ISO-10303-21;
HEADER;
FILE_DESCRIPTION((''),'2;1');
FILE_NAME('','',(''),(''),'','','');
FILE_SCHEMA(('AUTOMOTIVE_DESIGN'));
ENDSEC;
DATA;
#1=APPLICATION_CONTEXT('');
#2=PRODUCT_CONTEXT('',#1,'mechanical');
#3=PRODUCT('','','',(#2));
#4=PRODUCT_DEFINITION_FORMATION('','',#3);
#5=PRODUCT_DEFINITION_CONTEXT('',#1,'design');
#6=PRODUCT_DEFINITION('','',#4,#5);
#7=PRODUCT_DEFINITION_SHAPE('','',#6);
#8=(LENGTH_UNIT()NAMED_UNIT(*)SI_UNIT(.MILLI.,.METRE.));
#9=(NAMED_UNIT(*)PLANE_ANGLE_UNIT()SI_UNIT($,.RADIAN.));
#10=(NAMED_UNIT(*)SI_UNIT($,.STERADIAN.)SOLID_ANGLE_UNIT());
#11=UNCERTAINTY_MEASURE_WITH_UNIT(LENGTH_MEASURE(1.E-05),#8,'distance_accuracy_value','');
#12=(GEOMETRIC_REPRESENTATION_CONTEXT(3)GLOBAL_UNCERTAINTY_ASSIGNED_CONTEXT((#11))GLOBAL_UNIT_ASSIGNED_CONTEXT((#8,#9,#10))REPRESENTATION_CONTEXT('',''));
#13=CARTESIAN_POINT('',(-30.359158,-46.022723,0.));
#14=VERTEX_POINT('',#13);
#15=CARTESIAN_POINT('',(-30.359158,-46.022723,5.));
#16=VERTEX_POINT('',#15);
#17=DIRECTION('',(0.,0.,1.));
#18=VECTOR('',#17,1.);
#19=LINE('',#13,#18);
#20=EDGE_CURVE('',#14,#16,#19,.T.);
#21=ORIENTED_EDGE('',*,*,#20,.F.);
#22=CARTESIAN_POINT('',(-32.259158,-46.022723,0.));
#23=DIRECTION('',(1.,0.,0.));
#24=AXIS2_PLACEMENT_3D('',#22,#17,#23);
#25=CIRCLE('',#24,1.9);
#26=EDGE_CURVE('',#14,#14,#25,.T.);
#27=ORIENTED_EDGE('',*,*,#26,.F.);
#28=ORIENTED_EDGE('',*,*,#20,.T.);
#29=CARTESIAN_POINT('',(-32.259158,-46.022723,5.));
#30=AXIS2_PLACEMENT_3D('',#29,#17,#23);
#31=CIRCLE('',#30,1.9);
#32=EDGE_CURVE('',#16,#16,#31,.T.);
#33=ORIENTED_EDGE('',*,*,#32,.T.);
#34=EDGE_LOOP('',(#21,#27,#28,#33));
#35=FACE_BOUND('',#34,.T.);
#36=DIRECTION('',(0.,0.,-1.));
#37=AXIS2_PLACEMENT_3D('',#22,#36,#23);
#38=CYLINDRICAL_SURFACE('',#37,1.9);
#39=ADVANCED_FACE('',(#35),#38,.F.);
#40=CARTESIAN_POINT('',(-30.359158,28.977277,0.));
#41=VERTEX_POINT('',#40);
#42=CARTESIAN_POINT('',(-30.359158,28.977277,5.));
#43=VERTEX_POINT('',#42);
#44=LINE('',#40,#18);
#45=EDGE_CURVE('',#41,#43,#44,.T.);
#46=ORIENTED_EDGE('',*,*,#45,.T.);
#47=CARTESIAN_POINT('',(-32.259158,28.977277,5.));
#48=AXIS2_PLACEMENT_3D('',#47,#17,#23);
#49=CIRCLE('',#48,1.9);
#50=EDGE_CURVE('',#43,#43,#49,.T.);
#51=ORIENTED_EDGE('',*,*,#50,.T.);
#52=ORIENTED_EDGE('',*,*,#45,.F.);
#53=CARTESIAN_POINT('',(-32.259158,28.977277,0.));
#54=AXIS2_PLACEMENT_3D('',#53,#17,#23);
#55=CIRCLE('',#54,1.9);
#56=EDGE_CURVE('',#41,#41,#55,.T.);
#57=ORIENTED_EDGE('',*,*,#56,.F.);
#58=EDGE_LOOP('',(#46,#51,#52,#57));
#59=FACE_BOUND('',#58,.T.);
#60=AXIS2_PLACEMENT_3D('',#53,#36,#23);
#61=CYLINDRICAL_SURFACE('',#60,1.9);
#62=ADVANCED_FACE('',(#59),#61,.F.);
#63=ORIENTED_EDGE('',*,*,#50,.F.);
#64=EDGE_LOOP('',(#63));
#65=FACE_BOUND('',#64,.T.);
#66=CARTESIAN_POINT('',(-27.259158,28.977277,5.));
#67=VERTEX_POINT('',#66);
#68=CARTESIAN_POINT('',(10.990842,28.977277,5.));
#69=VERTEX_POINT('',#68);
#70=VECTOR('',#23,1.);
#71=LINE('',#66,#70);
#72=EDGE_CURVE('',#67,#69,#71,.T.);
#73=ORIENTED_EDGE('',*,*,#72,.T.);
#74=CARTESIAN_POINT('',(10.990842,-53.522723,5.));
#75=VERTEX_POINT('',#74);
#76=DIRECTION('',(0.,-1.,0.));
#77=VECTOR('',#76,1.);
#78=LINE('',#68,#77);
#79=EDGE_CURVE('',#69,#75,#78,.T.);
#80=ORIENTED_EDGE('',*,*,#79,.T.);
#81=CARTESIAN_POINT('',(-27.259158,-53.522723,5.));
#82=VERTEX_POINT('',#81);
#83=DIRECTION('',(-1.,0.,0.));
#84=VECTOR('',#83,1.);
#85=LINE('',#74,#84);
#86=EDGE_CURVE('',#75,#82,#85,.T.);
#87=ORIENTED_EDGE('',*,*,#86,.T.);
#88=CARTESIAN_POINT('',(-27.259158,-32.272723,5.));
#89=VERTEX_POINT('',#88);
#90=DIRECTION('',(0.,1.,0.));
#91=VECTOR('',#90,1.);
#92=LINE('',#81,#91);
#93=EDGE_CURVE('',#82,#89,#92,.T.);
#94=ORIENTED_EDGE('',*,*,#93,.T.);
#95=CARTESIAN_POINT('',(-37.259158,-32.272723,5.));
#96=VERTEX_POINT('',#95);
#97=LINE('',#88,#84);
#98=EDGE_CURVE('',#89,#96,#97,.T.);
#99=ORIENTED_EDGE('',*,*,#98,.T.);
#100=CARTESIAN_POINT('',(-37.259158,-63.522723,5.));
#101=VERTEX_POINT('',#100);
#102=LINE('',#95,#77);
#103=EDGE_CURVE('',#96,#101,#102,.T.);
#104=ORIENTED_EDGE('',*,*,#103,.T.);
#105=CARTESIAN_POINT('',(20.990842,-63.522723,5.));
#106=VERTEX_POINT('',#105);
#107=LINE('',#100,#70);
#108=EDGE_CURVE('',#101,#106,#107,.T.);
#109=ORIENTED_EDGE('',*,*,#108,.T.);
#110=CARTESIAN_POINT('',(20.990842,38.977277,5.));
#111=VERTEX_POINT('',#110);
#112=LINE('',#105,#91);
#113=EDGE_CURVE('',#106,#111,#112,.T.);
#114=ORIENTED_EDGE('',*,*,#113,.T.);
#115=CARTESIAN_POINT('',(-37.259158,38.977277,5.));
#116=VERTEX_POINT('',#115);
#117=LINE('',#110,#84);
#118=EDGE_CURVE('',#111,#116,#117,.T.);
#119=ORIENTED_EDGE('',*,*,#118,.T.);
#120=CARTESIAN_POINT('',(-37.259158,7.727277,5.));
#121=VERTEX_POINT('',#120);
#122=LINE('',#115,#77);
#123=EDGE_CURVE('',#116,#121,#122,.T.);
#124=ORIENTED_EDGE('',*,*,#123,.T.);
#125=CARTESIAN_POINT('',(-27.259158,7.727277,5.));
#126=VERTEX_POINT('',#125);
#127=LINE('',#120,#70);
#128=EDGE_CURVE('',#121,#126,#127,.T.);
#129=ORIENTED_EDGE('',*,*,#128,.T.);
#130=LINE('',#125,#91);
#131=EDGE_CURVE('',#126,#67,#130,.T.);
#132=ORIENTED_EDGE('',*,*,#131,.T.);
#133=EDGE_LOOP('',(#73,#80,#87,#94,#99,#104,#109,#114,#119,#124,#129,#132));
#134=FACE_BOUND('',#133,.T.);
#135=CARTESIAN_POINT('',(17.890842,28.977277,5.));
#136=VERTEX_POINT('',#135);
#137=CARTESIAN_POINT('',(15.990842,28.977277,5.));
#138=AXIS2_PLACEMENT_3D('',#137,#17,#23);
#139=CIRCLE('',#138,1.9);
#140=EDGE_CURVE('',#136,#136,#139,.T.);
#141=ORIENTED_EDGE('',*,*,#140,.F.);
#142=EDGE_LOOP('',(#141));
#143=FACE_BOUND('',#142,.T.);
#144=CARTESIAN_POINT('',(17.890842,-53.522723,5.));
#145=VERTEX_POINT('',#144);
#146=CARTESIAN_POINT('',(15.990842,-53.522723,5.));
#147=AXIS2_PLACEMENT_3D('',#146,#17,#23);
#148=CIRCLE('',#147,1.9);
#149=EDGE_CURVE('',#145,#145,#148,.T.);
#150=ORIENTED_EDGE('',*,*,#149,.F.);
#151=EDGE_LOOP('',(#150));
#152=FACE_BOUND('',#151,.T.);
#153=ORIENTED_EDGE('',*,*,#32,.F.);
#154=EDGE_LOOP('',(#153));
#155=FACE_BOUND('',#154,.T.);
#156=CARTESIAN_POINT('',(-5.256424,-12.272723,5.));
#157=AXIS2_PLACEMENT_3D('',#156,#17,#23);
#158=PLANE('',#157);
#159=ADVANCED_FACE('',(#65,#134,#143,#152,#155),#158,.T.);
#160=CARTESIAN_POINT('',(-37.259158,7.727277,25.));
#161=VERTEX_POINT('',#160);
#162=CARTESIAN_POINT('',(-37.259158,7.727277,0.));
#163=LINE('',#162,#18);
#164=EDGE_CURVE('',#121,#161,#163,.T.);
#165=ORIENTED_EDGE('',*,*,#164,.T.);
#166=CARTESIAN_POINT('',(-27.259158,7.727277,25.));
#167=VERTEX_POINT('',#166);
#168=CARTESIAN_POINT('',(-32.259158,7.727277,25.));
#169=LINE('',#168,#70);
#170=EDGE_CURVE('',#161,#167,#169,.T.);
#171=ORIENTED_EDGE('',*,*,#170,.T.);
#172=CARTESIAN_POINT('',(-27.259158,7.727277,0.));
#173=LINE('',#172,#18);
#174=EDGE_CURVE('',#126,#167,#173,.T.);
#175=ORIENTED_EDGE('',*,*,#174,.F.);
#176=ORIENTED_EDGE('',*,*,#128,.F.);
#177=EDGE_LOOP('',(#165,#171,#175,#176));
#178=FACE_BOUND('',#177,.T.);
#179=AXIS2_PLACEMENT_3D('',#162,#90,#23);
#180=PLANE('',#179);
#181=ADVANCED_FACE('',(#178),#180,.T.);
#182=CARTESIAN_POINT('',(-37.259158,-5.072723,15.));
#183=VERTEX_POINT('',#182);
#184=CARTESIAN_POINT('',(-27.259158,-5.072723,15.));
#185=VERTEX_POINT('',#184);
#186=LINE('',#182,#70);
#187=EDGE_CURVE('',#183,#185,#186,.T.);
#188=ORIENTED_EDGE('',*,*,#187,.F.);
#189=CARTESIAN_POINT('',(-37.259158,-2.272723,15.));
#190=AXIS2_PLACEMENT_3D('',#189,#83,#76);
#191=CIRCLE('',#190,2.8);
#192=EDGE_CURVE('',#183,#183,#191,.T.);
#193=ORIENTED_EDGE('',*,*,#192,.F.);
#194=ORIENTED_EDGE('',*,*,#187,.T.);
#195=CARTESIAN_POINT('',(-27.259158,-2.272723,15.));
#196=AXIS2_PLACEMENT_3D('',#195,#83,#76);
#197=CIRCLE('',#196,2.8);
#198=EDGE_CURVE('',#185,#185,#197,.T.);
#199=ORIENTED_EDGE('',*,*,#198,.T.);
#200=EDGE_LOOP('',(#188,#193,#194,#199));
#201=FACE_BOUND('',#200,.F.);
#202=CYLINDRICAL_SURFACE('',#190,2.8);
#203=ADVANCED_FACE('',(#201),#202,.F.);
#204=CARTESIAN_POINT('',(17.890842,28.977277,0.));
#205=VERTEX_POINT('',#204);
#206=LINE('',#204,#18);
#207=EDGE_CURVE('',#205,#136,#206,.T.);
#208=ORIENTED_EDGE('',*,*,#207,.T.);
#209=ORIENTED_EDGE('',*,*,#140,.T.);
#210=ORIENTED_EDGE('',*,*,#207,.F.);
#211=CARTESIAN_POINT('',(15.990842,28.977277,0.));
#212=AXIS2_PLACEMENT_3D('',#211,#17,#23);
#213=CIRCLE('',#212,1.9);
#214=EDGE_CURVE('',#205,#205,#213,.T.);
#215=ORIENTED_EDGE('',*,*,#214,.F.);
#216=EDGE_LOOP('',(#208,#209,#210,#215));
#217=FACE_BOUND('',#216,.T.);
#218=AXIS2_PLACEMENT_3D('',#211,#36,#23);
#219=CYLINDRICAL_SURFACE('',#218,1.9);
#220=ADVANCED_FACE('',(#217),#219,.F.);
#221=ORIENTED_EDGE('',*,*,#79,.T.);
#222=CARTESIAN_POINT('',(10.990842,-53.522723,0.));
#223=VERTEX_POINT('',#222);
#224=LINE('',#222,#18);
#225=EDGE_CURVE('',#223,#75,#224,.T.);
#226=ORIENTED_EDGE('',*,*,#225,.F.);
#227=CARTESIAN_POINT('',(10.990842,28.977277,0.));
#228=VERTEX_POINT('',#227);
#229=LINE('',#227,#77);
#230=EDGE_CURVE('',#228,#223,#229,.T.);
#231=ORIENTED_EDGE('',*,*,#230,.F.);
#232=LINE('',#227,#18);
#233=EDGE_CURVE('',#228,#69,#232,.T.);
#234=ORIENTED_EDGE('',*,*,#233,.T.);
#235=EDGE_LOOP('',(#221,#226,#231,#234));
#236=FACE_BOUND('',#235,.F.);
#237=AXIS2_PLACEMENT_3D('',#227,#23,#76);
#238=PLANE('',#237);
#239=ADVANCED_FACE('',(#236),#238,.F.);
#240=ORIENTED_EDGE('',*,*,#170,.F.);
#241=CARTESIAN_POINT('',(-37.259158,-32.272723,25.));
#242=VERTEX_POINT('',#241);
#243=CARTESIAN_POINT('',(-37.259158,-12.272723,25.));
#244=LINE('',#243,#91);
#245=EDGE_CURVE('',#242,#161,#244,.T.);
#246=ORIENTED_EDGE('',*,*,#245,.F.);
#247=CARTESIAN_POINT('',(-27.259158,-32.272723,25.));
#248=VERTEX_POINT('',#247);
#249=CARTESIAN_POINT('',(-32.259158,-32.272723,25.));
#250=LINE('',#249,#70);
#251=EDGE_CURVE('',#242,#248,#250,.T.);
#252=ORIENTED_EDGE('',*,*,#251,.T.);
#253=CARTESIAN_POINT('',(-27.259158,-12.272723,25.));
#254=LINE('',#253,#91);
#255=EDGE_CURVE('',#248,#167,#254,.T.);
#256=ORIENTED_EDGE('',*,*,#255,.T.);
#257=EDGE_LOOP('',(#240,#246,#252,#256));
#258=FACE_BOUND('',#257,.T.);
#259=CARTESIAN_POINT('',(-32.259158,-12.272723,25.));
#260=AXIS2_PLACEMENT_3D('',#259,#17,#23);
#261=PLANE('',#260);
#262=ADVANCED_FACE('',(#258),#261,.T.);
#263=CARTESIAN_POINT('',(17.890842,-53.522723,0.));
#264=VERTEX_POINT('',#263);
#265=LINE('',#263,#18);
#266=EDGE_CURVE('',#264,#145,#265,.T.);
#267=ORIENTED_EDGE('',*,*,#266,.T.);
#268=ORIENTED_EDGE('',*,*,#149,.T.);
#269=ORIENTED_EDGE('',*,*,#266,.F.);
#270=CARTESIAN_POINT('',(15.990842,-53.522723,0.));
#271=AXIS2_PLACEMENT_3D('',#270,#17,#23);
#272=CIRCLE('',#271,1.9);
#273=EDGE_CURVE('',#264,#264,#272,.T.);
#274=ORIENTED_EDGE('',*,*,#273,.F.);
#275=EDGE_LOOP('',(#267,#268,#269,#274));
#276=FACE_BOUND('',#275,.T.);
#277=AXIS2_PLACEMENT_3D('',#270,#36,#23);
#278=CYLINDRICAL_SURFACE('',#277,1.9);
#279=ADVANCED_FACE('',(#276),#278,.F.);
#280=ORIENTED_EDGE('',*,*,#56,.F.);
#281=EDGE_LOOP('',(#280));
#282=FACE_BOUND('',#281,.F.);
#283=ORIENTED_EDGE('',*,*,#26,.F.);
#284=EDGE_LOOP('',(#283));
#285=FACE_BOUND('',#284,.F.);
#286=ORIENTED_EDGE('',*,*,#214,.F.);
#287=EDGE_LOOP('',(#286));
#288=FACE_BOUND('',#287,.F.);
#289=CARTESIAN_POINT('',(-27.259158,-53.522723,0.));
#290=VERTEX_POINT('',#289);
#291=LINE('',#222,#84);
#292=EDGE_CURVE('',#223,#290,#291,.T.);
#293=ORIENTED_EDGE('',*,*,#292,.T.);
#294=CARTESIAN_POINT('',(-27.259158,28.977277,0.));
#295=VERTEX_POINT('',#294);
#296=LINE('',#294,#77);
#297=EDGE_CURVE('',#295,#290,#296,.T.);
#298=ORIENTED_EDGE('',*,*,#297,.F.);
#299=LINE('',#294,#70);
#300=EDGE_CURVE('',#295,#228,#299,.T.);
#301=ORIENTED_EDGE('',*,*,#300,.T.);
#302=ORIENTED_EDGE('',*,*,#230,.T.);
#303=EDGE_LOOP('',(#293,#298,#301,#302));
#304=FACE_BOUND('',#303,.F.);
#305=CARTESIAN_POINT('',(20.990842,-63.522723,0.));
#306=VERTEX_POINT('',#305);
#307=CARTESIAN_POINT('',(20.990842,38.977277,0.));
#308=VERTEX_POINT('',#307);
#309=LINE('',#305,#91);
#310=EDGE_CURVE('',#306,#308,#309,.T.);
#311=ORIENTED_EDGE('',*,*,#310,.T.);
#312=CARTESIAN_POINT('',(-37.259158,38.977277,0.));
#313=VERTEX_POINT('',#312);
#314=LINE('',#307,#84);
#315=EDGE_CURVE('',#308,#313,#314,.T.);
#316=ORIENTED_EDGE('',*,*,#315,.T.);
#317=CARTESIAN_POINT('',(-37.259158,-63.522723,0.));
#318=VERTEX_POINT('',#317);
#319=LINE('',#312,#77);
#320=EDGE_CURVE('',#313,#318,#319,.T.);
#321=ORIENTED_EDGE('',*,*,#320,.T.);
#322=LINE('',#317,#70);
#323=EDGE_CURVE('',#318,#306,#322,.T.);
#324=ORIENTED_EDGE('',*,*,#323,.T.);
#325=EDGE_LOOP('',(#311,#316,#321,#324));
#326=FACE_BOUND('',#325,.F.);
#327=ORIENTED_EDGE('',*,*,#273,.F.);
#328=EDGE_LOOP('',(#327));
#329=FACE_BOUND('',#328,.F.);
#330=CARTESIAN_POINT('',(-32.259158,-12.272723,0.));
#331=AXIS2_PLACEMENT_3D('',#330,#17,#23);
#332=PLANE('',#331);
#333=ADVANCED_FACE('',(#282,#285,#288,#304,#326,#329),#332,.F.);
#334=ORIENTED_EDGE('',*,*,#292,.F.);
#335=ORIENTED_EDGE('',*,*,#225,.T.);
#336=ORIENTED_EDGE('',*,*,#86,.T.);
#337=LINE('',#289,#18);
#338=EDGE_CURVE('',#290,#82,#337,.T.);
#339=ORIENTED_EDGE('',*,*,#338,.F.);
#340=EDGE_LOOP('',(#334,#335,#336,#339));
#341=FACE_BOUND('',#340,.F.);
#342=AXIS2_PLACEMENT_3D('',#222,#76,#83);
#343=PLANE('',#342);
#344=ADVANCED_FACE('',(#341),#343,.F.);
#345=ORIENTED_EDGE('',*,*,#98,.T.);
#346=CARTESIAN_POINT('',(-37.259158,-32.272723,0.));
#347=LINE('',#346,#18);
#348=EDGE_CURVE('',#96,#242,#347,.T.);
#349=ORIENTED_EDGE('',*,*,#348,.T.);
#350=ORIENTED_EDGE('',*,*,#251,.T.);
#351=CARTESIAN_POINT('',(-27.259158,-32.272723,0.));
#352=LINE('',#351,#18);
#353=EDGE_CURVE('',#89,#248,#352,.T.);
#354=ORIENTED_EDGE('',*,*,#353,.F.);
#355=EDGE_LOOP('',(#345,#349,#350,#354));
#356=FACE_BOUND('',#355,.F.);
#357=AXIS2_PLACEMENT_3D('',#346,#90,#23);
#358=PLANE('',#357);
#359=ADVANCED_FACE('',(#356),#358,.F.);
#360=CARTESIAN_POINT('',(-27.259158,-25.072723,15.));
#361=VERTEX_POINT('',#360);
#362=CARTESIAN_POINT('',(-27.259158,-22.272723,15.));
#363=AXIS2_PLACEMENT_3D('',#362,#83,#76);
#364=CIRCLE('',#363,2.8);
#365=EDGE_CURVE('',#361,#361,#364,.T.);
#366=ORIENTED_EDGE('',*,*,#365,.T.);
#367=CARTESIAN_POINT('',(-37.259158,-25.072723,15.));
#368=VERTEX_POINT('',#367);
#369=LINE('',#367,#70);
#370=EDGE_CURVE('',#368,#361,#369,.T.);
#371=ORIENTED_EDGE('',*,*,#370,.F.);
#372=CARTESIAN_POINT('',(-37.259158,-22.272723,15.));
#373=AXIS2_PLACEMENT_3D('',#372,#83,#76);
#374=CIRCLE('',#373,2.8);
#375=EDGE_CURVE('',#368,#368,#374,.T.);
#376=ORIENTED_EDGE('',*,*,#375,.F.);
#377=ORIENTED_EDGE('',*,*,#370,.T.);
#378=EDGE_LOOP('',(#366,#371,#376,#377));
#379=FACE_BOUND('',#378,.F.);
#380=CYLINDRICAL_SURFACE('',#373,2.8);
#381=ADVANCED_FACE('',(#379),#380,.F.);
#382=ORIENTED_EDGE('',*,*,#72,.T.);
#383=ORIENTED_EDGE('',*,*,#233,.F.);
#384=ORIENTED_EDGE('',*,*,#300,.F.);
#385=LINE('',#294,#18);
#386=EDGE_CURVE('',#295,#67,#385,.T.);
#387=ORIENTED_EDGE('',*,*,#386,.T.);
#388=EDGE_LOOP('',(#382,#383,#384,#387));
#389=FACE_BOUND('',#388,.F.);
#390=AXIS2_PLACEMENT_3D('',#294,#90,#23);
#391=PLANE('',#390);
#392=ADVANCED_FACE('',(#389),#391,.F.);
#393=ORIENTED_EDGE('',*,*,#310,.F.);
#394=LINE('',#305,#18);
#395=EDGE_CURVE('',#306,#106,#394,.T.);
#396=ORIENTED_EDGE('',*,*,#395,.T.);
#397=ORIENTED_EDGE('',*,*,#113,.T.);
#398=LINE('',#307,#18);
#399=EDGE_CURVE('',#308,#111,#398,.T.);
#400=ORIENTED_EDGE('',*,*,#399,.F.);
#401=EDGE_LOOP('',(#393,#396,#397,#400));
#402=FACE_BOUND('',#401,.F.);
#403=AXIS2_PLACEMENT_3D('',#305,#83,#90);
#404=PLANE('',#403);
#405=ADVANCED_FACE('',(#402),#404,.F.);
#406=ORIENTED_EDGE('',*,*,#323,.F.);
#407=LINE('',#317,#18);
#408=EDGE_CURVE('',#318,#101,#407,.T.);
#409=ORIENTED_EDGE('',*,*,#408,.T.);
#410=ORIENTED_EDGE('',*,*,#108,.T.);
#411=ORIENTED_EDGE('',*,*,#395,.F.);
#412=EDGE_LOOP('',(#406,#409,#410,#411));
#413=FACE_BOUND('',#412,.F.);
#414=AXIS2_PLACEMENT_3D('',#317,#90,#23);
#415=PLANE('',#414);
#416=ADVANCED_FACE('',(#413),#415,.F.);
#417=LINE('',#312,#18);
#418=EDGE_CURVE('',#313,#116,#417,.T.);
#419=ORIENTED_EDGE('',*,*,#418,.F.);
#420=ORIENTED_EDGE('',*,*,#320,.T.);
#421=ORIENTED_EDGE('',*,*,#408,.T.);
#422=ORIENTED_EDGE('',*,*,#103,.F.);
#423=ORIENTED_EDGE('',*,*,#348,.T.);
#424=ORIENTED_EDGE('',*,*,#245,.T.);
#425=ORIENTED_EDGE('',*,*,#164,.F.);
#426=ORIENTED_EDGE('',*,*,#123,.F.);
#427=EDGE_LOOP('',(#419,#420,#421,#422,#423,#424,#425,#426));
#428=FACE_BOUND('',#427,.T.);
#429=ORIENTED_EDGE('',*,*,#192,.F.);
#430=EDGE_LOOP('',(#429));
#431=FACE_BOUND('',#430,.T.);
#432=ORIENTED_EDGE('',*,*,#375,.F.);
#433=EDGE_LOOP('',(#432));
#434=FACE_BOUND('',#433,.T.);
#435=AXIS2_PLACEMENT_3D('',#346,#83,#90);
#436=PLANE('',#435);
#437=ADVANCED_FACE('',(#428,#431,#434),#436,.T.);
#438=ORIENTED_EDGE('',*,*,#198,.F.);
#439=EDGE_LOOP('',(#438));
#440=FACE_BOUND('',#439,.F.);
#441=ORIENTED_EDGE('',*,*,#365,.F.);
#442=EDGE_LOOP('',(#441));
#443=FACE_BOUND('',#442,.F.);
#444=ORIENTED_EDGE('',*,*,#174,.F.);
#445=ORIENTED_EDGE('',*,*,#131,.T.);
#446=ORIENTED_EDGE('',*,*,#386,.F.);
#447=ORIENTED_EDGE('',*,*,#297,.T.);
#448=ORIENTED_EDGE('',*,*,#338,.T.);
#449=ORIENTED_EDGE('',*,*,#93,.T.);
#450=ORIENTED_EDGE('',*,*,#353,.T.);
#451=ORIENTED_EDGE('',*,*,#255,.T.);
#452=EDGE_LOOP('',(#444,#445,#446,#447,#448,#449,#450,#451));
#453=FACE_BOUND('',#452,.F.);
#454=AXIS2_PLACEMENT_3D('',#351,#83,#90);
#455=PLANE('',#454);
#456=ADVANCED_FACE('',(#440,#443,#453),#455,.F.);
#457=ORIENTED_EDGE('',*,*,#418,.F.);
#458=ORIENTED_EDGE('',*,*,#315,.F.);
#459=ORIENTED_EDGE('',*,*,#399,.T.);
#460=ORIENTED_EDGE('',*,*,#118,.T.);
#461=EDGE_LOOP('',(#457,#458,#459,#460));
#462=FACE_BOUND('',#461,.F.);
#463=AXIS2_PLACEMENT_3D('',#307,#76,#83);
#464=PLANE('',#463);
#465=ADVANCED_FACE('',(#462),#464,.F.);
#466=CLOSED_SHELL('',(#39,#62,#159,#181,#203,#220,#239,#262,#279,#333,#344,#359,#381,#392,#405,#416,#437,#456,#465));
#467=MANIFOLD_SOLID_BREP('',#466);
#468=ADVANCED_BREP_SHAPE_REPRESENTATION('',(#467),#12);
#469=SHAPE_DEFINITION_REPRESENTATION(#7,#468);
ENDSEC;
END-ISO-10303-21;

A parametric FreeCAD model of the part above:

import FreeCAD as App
import Part
import Sketcher

V = App.Vector
Q = App.Units.Quantity


def add_polygon(sketch, points):
    """Adds a closed chain of lines whose ends are joined by coincident constraints."""
    first, n = sketch.GeometryCount, len(points)
    for a, b in zip(points, points[1:] + points[:1]):
        sketch.addGeometry(Part.LineSegment(App.Vector(*a, 0), App.Vector(*b, 0)), False)
    for i in range(n):
        sketch.addConstraint(Sketcher.Constraint("Coincident", first + i, 2, first + (i + 1) % n, 1))

doc = App.newDocument("Part")
body = doc.addObject("PartDesign::Body", "Body")

sketch1 = body.newObject("Sketcher::SketchObject", "Sketch")
sketch1.AttachmentSupport = (doc.getObject("XY_Plane"), [""])
sketch1.MapMode = "FlatFace"
add_polygon(sketch1, [(20.990842, 38.977277), (-37.259158, 38.977277), (-37.259158, 7.727277), (-27.259158, 7.727277), (-27.259158, 28.977277), (10.990842, 28.977277), (10.990842, -53.522723), (-27.259158, -53.522723), (-27.259158, -32.272723), (-37.259158, -32.272723), (-37.259158, -63.522723), (20.990842, -63.522723)])
sketch1.addGeometry(Part.Circle(V(-32.259158, -46.022723, 0), V(0, 0, 1), 1.9), False)
sketch1.addGeometry(Part.Circle(V(15.990842, -53.522723, 0), V(0, 0, 1), 1.9), False)
sketch1.addGeometry(Part.Circle(V(-32.259158, 28.977277, 0), V(0, 0, 1), 1.9), False)
sketch1.addGeometry(Part.Circle(V(15.990842, 28.977277, 0), V(0, 0, 1), 1.9), False)
sketch1.addConstraint([
    Sketcher.Constraint("Horizontal", 0),
    Sketcher.Constraint("Vertical", 1),
    Sketcher.Constraint("Horizontal", 2),
    Sketcher.Constraint("Vertical", 3),
    Sketcher.Constraint("Horizontal", 4),
    Sketcher.Constraint("Vertical", 5),
    Sketcher.Constraint("Horizontal", 6),
    Sketcher.Constraint("Vertical", 7),
    Sketcher.Constraint("Horizontal", 8),
    Sketcher.Constraint("Vertical", 9),
    Sketcher.Constraint("Horizontal", 10),
    Sketcher.Constraint("Vertical", 11),
    Sketcher.Constraint("Equal", 12, 13),
    Sketcher.Constraint("Equal", 13, 14),
    Sketcher.Constraint("Equal", 14, 15),
    Sketcher.Constraint("Horizontal", 14, 3, 15, 3),
    Sketcher.Constraint("Horizontal", 15, 3, 3, 2),
    Sketcher.Constraint("Horizontal", 13, 3, 5, 2),
    Sketcher.Constraint("Vertical", 12, 3, 14, 3),
    Sketcher.Constraint("Vertical", 13, 3, 15, 3),
    Sketcher.Constraint("Vertical", 3, 2, 6, 2),
    Sketcher.Constraint("Vertical", 1, 2, 8, 2),
    Sketcher.Constraint("Equal", 3, 7),
    Sketcher.Constraint("Equal", 1, 9),
    Sketcher.Constraint("Diameter", 12, Q("3.8 mm")),
    Sketcher.Constraint("DistanceX", 2, 1, 2, 2, Q("10 mm")),
    Sketcher.Constraint("DistanceY", 5, 2, 5, 1, Q("82.5 mm")),
    Sketcher.Constraint("DistanceY", 11, 1, 11, 2, Q("102.5 mm")),
    Sketcher.Constraint("DistanceY", 12, 3, 14, 3, Q("75 mm")),
    Sketcher.Constraint("DistanceX", 0, 2, 14, 3, Q("5 mm")),
    Sketcher.Constraint("DistanceX", 4, 2, 15, 3, Q("5 mm")),
    Sketcher.Constraint("DistanceY", 7, 2, 2, 2, Q("40 mm")),
    Sketcher.Constraint("DistanceX", 13, 3, 10, 2, Q("5 mm")),
    Sketcher.Constraint("DistanceX", 0, 2, 0, 1, Q("58.25 mm")),
    Sketcher.Constraint("DistanceX", 12, 3, -1, 1, Q("32.259158 mm")),
    Sketcher.Constraint("DistanceY", 12, 3, -1, 1, Q("46.022723 mm")),
])
pad1 = body.newObject("PartDesign::Pad", "Pad")
pad1.Profile = sketch1
pad1.Length = 5

sketch2 = body.newObject("Sketcher::SketchObject", "Sketch001")
sketch2.AttachmentSupport = (doc.getObject("XY_Plane"), [""])
sketch2.MapMode = "FlatFace"
add_polygon(sketch2, [(-37.259158, 7.727277), (-37.259158, -32.272723), (-27.259158, -32.272723), (-27.259158, 7.727277)])
sketch2.addConstraint([
    Sketcher.Constraint("Vertical", 0),
    Sketcher.Constraint("Horizontal", 1),
    Sketcher.Constraint("Vertical", 2),
    Sketcher.Constraint("Horizontal", 3),
    Sketcher.Constraint("DistanceX", 1, 1, 1, 2, Q("10 mm")),
    Sketcher.Constraint("DistanceY", 0, 2, 0, 1, Q("40 mm")),
    Sketcher.Constraint("DistanceX", 0, 2, -1, 1, Q("37.259158 mm")),
    Sketcher.Constraint("DistanceY", 0, 2, -1, 1, Q("32.272723 mm")),
])
pad2 = body.newObject("PartDesign::Pad", "Pad001")
pad2.Profile = sketch2
pad2.Length = 25

sketch3 = body.newObject("Sketcher::SketchObject", "Sketch002")
sketch3.AttachmentSupport = (doc.getObject("YZ_Plane"), [""])
sketch3.MapMode = "FlatFace"
sketch3.AttachmentOffset = App.Placement(V(0, 0, -37.259158), App.Rotation())
sketch3.addGeometry([
    Part.Circle(V(-2.272723, 15, 0), V(0, 0, 1), 2.8),
    Part.Circle(V(-22.272723, 15, 0), V(0, 0, 1), 2.8),
], False)
sketch3.addConstraint([
    Sketcher.Constraint("Equal", 0, 1),
    Sketcher.Constraint("Horizontal", 0, 3, 1, 3),
    Sketcher.Constraint("Diameter", 0, Q("5.6 mm")),
    Sketcher.Constraint("DistanceY", -1, 1, 0, 3, Q("15 mm")),
    Sketcher.Constraint("DistanceX", 1, 3, 0, 3, Q("20 mm")),
    Sketcher.Constraint("DistanceX", 0, 3, -1, 1, Q("2.272723 mm")),
])
pocket1 = body.newObject("PartDesign::Pocket", "Pocket")
pocket1.Profile = sketch3
pocket1.Type = "ThroughAll"
pocket1.Reversed = True

doc.recompute()
